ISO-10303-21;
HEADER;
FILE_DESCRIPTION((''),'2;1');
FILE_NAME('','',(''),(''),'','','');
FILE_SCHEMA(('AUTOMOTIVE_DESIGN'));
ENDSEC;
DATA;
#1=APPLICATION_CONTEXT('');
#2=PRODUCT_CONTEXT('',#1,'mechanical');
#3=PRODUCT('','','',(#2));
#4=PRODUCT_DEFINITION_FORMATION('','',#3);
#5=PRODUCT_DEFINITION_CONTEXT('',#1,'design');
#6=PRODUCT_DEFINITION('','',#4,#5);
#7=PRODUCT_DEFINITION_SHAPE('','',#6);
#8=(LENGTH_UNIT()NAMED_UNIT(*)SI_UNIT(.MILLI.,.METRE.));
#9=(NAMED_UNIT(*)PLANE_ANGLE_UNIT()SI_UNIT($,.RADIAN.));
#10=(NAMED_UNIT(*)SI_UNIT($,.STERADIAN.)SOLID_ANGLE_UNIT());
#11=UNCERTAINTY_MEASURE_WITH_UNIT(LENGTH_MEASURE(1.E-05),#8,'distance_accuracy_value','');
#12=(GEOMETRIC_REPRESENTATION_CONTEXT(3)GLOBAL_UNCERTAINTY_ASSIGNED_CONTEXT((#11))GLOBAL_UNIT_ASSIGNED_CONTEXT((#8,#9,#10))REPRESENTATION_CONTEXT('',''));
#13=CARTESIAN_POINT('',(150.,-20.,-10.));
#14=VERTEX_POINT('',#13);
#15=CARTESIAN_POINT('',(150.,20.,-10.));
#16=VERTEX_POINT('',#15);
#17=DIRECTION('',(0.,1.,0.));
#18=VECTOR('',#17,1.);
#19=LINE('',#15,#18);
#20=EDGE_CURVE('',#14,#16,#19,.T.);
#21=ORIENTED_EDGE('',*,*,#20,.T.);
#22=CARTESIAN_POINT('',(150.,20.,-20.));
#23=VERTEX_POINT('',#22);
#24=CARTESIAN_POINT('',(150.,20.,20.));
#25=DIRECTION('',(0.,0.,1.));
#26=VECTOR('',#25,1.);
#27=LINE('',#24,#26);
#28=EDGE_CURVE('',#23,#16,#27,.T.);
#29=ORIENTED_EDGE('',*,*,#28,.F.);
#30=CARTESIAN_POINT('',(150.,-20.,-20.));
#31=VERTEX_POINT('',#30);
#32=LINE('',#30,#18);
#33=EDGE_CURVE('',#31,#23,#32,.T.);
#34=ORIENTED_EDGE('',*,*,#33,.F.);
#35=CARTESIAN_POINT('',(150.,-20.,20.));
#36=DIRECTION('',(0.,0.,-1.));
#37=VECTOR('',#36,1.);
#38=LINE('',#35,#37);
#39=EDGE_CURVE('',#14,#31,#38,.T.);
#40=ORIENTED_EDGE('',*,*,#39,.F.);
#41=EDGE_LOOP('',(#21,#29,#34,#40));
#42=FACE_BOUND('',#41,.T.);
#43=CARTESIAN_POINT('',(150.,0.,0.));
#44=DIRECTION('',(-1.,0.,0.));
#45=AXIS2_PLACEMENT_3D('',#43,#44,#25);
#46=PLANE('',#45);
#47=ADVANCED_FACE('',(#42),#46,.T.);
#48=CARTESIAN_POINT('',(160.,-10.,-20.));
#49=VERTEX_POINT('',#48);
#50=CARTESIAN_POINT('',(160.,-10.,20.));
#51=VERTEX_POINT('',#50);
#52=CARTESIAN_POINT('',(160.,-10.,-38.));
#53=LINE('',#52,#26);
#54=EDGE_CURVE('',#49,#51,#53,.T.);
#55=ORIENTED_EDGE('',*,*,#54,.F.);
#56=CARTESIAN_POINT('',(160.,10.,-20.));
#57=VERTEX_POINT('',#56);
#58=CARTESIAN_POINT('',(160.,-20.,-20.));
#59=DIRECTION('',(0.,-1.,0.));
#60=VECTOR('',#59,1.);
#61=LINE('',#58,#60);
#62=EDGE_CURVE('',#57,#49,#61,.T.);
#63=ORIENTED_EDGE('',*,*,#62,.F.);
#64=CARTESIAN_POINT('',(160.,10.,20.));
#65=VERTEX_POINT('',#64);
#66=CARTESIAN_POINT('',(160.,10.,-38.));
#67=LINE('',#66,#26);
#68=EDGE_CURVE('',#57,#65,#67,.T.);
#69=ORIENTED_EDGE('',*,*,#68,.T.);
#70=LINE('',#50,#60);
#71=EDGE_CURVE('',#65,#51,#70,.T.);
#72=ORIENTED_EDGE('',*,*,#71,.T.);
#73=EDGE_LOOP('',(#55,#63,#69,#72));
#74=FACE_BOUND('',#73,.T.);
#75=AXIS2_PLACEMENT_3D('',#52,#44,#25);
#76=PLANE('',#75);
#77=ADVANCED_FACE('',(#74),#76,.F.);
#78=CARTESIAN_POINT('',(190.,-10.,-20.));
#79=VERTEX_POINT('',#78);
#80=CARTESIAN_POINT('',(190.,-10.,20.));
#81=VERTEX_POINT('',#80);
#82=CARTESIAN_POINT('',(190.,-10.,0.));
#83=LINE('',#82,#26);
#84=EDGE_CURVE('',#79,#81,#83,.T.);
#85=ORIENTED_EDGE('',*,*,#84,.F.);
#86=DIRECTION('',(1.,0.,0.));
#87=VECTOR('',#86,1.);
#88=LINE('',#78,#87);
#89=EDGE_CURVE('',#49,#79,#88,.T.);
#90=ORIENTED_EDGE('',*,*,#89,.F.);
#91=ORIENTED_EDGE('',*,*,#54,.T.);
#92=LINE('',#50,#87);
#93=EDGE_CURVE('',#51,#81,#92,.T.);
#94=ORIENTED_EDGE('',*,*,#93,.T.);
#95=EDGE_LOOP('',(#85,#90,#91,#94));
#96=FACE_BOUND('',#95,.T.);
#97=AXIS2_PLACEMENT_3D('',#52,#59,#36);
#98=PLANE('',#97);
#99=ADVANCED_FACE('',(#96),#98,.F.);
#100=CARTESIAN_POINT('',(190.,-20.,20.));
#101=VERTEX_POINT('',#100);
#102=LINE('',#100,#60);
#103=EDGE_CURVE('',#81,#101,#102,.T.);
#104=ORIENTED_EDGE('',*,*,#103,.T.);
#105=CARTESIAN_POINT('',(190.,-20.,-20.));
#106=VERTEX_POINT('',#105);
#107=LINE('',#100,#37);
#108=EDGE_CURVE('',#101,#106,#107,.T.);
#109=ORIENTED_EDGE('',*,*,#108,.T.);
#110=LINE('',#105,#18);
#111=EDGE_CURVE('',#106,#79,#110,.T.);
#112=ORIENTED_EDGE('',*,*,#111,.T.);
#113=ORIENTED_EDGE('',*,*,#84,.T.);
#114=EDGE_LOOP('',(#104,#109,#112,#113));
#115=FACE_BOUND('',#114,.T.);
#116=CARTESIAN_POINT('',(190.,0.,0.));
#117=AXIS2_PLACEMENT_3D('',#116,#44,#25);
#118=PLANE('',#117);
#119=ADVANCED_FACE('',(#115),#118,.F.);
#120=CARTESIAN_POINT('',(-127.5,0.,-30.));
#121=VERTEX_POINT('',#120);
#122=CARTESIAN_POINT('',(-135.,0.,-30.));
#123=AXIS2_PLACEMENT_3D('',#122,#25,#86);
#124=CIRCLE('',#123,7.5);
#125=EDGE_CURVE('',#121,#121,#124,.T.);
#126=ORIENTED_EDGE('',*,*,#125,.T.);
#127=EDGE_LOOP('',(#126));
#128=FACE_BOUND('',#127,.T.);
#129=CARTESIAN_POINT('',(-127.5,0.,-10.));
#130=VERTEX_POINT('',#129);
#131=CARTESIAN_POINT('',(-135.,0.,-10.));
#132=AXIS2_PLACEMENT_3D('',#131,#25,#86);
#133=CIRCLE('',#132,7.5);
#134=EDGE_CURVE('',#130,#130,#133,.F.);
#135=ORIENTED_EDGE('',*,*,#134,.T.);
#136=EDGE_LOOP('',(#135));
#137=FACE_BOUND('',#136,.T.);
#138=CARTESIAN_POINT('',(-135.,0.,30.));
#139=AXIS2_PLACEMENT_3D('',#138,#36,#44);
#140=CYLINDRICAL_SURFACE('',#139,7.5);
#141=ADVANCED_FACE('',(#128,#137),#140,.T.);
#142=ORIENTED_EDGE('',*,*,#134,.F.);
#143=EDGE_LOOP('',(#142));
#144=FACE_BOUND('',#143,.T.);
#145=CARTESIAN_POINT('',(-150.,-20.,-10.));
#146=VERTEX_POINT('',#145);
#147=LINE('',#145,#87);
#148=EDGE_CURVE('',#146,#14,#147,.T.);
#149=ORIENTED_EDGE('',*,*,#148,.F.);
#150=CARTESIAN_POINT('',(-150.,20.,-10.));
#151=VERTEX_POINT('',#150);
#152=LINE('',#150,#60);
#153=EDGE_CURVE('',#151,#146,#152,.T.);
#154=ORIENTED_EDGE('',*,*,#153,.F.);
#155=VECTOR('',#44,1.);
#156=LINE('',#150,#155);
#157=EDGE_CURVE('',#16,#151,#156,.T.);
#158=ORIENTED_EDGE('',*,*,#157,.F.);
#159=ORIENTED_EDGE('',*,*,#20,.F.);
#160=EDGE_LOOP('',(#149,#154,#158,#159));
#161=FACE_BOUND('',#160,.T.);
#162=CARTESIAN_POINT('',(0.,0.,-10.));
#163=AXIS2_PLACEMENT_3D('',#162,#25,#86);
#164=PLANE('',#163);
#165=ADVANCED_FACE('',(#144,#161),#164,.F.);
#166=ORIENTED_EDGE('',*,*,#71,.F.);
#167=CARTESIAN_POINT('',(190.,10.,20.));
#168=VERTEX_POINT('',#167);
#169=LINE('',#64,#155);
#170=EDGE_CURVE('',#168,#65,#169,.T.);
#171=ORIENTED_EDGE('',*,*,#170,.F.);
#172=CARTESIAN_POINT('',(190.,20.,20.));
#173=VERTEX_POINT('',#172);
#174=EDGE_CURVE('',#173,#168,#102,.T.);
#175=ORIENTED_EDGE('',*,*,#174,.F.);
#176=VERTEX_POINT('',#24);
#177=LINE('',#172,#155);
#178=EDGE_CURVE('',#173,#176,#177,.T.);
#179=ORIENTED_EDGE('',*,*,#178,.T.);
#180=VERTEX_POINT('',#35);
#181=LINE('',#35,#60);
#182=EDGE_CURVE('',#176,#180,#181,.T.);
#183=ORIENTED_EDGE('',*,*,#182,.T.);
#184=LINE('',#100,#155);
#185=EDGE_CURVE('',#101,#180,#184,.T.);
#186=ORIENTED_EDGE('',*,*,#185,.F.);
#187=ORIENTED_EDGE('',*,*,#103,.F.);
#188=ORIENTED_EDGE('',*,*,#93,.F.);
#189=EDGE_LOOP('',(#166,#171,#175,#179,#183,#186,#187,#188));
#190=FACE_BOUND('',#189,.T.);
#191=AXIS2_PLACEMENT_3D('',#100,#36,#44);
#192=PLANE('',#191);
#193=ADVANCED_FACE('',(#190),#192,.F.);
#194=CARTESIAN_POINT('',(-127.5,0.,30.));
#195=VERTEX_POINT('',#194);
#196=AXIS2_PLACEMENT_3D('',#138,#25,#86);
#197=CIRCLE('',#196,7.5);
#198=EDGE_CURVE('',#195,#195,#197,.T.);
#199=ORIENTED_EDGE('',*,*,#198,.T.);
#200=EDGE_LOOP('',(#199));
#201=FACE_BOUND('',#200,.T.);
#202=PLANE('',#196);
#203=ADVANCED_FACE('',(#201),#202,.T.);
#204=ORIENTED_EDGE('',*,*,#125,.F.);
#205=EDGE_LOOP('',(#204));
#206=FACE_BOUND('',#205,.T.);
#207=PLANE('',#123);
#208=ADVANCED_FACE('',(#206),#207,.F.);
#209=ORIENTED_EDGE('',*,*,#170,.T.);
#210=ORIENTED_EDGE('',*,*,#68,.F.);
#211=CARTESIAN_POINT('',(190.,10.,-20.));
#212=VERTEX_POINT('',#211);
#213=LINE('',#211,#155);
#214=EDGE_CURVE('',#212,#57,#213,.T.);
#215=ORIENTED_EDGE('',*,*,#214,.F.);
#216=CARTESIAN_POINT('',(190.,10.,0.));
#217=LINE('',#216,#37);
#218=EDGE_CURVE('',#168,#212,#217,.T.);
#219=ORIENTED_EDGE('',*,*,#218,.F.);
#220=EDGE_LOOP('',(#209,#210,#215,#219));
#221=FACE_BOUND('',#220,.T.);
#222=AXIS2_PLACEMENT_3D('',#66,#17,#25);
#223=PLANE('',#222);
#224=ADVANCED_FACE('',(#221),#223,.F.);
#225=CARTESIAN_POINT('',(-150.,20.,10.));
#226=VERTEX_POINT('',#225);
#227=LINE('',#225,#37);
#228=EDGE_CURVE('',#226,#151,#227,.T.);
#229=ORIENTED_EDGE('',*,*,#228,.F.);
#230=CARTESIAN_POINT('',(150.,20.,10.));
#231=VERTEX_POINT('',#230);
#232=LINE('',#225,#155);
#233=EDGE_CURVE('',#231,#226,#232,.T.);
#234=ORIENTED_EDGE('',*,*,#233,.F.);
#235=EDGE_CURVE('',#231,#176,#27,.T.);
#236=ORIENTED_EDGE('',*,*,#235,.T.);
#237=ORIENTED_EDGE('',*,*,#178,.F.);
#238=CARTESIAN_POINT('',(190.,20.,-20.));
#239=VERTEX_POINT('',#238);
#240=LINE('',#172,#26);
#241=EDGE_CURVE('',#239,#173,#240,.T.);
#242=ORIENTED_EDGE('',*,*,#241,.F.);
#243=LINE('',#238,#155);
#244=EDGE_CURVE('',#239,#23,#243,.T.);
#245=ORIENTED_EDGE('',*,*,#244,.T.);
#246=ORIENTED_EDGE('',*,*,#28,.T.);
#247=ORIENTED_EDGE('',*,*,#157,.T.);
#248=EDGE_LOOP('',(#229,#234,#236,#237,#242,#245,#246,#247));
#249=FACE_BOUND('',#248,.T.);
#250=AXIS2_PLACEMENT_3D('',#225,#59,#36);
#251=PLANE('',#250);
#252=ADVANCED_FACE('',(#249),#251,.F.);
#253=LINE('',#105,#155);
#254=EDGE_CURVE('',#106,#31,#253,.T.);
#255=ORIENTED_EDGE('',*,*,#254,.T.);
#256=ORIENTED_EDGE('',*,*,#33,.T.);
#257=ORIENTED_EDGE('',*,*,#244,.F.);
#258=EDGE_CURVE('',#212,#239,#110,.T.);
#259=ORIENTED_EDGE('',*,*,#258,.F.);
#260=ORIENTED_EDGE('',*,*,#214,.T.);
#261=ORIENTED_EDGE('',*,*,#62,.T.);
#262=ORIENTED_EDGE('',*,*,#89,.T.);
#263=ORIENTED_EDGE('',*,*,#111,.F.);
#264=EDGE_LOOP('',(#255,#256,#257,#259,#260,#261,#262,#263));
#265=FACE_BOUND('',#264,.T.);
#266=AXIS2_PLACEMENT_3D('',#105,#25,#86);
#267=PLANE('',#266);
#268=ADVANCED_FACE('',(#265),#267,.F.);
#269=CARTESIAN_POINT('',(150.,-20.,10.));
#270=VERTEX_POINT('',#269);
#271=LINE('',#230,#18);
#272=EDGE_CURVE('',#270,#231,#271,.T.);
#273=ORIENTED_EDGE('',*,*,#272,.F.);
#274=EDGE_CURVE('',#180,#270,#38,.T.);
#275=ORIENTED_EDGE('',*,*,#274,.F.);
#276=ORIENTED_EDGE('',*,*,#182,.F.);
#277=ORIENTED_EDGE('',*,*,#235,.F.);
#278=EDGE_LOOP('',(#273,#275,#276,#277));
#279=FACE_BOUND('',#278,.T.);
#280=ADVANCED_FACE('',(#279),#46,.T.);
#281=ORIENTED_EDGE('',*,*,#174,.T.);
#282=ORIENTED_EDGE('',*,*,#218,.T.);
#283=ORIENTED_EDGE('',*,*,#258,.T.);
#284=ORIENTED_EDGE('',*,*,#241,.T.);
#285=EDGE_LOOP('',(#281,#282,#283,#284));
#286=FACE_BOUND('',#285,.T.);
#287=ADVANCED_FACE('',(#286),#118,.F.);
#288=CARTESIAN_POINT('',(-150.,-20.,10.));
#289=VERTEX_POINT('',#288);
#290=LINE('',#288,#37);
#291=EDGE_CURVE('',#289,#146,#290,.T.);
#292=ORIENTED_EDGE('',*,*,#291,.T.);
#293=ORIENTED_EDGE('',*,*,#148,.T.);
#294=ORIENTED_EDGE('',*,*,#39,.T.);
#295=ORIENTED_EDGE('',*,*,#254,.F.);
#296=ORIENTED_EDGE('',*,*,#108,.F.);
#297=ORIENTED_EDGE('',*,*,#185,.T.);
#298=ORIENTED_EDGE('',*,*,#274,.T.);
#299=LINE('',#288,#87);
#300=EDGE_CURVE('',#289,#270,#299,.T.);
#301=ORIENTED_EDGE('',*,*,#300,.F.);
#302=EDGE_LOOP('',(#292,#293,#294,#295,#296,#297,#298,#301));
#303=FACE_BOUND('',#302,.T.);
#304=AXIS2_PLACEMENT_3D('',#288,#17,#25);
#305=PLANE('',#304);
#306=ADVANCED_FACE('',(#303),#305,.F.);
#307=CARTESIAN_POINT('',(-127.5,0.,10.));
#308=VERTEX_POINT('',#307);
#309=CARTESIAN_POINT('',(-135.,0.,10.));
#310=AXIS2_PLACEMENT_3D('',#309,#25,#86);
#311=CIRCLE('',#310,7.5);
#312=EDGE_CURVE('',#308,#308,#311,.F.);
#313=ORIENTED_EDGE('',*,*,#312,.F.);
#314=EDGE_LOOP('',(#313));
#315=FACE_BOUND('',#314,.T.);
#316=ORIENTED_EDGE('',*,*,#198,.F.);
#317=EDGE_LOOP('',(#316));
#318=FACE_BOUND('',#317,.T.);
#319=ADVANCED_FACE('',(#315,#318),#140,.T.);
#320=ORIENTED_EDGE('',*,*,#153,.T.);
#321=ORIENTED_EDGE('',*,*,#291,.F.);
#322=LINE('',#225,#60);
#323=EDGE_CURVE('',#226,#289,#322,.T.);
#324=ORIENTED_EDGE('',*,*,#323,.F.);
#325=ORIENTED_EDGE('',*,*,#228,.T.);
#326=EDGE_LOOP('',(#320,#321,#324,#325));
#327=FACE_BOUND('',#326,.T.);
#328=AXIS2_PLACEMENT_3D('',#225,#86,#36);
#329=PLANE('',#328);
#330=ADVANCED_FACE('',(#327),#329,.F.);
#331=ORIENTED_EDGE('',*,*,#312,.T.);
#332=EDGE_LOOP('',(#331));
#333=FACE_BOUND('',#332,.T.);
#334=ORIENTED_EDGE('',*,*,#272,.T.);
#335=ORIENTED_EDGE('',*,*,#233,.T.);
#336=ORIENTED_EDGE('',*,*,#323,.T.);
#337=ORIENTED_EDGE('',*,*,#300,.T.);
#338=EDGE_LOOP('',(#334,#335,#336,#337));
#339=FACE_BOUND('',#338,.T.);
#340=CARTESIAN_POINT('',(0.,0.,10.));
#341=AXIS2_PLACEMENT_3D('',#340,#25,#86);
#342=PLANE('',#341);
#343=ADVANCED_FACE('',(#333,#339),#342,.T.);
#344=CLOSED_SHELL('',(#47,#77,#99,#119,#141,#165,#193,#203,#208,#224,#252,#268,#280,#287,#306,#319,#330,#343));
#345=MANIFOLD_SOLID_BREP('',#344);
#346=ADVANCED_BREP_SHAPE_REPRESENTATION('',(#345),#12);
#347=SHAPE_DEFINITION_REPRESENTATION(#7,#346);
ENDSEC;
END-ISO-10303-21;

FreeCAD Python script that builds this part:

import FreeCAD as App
import Part
import Sketcher
Q = App.Units.Quantity


def add_polygon(sketch, points):
    """Adds a closed chain of lines whose ends are joined by coincident constraints."""
    first, n = sketch.GeometryCount, len(points)
    for a, b in zip(points, points[1:] + points[:1]):
        sketch.addGeometry(Part.LineSegment(App.Vector(*a, 0), App.Vector(*b, 0)), False)
    for i in range(n):
        sketch.addConstraint(Sketcher.Constraint("Coincident", first + i, 2, first + (i + 1) % n, 1))

doc = App.newDocument("Part")
body = doc.addObject("PartDesign::Body", "Body")

sketch1 = body.newObject("Sketcher::SketchObject", "Sketch")
sketch1.AttachmentSupport = (doc.getObject("XY_Plane"), [""])
sketch1.MapMode = "FlatFace"
add_polygon(sketch1, [(-150, 20), (-150, -20), (150, -20), (150, 20)])
sketch1.addConstraint(Sketcher.Constraint("Vertical", 0))
sketch1.addConstraint(Sketcher.Constraint("Horizontal", 1))
sketch1.addConstraint(Sketcher.Constraint("Vertical", 2))
sketch1.addConstraint(Sketcher.Constraint("Horizontal", 3))
sketch1.addConstraint(Sketcher.Constraint("Symmetric", 0, 2, 2, 2, -1, 1))
sketch1.addConstraint(Sketcher.Constraint("DistanceX", 1, 1, 1, 2, Q("300 mm")))
sketch1.addConstraint(Sketcher.Constraint("DistanceY", 0, 2, 0, 1, Q("40 mm")))
pad1 = body.newObject("PartDesign::Pad", "Pad")
pad1.Profile = sketch1
pad1.Length = 20
pad1.Midplane = True

sketch2 = body.newObject("Sketcher::SketchObject", "Sketch001")
sketch2.AttachmentSupport = (doc.getObject("XY_Plane"), [""])
sketch2.MapMode = "FlatFace"
sketch2.addGeometry(Part.Circle(App.Vector(-135, 0, 0), App.Vector(0, 0, 1), 8), False)
sketch2.addConstraint(Sketcher.Constraint("PointOnObject", 0, 3, -1))
sketch2.addConstraint(Sketcher.Constraint("Diameter", 0, Q("15 mm")))
sketch2.addConstraint(Sketcher.Constraint("DistanceX", 0, 3, -1, 1, Q("135 mm")))
pad2 = body.newObject("PartDesign::Pad", "Pad001")
pad2.Profile = sketch2
pad2.Length = 60
pad2.Midplane = True

sketch3 = body.newObject("Sketcher::SketchObject", "Sketch002")
sketch3.AttachmentSupport = (doc.getObject("YZ_Plane"), [""])
sketch3.MapMode = "FlatFace"
sketch3.AttachmentOffset = App.Placement(App.Vector(0, 0, 150), App.Rotation())
add_polygon(sketch3, [(20, 20), (-20, 20), (-20, -20), (20, -20)])
sketch3.addConstraint(Sketcher.Constraint("Horizontal", 0))
sketch3.addConstraint(Sketcher.Constraint("Vertical", 1))
sketch3.addConstraint(Sketcher.Constraint("Horizontal", 2))
sketch3.addConstraint(Sketcher.Constraint("Vertical", 3))
sketch3.addConstraint(Sketcher.Constraint("Symmetric", 0, 2, 2, 2, -1, 1))
sketch3.addConstraint(Sketcher.Constraint("Equal", 2, 1))
sketch3.addConstraint(Sketcher.Constraint("DistanceX", 0, 2, 0, 1, Q("40 mm")))
pad3 = body.newObject("PartDesign::Pad", "Pad002")
pad3.Profile = sketch3
pad3.Length = 40

sketch4 = body.newObject("Sketcher::SketchObject", "Sketch003")
sketch4.AttachmentSupport = (doc.getObject("XY_Plane"), [""])
sketch4.MapMode = "FlatFace"
sketch4.AttachmentOffset = App.Placement(App.Vector(0, 0, 20), App.Rotation())
add_polygon(sketch4, [(160, 10), (160, -10), (220, -10), (220, 10)])
sketch4.addConstraint(Sketcher.Constraint("Vertical", 0))
sketch4.addConstraint(Sketcher.Constraint("Horizontal", 1))
sketch4.addConstraint(Sketcher.Constraint("Vertical", 2))
sketch4.addConstraint(Sketcher.Constraint("Horizontal", 3))
sketch4.addConstraint(Sketcher.Constraint("DistanceX", 1, 1, 1, 2, Q("60 mm")))
sketch4.addConstraint(Sketcher.Constraint("DistanceY", 0, 2, 0, 1, Q("20 mm")))
sketch4.addConstraint(Sketcher.Constraint("DistanceX", -1, 1, 0, 2, Q("160 mm")))
sketch4.addConstraint(Sketcher.Constraint("DistanceY", 0, 2, -1, 1, Q("10 mm")))
pocket1 = body.newObject("PartDesign::Pocket", "Pocket")
pocket1.Profile = sketch4
pocket1.Length = 58

doc.recompute()
